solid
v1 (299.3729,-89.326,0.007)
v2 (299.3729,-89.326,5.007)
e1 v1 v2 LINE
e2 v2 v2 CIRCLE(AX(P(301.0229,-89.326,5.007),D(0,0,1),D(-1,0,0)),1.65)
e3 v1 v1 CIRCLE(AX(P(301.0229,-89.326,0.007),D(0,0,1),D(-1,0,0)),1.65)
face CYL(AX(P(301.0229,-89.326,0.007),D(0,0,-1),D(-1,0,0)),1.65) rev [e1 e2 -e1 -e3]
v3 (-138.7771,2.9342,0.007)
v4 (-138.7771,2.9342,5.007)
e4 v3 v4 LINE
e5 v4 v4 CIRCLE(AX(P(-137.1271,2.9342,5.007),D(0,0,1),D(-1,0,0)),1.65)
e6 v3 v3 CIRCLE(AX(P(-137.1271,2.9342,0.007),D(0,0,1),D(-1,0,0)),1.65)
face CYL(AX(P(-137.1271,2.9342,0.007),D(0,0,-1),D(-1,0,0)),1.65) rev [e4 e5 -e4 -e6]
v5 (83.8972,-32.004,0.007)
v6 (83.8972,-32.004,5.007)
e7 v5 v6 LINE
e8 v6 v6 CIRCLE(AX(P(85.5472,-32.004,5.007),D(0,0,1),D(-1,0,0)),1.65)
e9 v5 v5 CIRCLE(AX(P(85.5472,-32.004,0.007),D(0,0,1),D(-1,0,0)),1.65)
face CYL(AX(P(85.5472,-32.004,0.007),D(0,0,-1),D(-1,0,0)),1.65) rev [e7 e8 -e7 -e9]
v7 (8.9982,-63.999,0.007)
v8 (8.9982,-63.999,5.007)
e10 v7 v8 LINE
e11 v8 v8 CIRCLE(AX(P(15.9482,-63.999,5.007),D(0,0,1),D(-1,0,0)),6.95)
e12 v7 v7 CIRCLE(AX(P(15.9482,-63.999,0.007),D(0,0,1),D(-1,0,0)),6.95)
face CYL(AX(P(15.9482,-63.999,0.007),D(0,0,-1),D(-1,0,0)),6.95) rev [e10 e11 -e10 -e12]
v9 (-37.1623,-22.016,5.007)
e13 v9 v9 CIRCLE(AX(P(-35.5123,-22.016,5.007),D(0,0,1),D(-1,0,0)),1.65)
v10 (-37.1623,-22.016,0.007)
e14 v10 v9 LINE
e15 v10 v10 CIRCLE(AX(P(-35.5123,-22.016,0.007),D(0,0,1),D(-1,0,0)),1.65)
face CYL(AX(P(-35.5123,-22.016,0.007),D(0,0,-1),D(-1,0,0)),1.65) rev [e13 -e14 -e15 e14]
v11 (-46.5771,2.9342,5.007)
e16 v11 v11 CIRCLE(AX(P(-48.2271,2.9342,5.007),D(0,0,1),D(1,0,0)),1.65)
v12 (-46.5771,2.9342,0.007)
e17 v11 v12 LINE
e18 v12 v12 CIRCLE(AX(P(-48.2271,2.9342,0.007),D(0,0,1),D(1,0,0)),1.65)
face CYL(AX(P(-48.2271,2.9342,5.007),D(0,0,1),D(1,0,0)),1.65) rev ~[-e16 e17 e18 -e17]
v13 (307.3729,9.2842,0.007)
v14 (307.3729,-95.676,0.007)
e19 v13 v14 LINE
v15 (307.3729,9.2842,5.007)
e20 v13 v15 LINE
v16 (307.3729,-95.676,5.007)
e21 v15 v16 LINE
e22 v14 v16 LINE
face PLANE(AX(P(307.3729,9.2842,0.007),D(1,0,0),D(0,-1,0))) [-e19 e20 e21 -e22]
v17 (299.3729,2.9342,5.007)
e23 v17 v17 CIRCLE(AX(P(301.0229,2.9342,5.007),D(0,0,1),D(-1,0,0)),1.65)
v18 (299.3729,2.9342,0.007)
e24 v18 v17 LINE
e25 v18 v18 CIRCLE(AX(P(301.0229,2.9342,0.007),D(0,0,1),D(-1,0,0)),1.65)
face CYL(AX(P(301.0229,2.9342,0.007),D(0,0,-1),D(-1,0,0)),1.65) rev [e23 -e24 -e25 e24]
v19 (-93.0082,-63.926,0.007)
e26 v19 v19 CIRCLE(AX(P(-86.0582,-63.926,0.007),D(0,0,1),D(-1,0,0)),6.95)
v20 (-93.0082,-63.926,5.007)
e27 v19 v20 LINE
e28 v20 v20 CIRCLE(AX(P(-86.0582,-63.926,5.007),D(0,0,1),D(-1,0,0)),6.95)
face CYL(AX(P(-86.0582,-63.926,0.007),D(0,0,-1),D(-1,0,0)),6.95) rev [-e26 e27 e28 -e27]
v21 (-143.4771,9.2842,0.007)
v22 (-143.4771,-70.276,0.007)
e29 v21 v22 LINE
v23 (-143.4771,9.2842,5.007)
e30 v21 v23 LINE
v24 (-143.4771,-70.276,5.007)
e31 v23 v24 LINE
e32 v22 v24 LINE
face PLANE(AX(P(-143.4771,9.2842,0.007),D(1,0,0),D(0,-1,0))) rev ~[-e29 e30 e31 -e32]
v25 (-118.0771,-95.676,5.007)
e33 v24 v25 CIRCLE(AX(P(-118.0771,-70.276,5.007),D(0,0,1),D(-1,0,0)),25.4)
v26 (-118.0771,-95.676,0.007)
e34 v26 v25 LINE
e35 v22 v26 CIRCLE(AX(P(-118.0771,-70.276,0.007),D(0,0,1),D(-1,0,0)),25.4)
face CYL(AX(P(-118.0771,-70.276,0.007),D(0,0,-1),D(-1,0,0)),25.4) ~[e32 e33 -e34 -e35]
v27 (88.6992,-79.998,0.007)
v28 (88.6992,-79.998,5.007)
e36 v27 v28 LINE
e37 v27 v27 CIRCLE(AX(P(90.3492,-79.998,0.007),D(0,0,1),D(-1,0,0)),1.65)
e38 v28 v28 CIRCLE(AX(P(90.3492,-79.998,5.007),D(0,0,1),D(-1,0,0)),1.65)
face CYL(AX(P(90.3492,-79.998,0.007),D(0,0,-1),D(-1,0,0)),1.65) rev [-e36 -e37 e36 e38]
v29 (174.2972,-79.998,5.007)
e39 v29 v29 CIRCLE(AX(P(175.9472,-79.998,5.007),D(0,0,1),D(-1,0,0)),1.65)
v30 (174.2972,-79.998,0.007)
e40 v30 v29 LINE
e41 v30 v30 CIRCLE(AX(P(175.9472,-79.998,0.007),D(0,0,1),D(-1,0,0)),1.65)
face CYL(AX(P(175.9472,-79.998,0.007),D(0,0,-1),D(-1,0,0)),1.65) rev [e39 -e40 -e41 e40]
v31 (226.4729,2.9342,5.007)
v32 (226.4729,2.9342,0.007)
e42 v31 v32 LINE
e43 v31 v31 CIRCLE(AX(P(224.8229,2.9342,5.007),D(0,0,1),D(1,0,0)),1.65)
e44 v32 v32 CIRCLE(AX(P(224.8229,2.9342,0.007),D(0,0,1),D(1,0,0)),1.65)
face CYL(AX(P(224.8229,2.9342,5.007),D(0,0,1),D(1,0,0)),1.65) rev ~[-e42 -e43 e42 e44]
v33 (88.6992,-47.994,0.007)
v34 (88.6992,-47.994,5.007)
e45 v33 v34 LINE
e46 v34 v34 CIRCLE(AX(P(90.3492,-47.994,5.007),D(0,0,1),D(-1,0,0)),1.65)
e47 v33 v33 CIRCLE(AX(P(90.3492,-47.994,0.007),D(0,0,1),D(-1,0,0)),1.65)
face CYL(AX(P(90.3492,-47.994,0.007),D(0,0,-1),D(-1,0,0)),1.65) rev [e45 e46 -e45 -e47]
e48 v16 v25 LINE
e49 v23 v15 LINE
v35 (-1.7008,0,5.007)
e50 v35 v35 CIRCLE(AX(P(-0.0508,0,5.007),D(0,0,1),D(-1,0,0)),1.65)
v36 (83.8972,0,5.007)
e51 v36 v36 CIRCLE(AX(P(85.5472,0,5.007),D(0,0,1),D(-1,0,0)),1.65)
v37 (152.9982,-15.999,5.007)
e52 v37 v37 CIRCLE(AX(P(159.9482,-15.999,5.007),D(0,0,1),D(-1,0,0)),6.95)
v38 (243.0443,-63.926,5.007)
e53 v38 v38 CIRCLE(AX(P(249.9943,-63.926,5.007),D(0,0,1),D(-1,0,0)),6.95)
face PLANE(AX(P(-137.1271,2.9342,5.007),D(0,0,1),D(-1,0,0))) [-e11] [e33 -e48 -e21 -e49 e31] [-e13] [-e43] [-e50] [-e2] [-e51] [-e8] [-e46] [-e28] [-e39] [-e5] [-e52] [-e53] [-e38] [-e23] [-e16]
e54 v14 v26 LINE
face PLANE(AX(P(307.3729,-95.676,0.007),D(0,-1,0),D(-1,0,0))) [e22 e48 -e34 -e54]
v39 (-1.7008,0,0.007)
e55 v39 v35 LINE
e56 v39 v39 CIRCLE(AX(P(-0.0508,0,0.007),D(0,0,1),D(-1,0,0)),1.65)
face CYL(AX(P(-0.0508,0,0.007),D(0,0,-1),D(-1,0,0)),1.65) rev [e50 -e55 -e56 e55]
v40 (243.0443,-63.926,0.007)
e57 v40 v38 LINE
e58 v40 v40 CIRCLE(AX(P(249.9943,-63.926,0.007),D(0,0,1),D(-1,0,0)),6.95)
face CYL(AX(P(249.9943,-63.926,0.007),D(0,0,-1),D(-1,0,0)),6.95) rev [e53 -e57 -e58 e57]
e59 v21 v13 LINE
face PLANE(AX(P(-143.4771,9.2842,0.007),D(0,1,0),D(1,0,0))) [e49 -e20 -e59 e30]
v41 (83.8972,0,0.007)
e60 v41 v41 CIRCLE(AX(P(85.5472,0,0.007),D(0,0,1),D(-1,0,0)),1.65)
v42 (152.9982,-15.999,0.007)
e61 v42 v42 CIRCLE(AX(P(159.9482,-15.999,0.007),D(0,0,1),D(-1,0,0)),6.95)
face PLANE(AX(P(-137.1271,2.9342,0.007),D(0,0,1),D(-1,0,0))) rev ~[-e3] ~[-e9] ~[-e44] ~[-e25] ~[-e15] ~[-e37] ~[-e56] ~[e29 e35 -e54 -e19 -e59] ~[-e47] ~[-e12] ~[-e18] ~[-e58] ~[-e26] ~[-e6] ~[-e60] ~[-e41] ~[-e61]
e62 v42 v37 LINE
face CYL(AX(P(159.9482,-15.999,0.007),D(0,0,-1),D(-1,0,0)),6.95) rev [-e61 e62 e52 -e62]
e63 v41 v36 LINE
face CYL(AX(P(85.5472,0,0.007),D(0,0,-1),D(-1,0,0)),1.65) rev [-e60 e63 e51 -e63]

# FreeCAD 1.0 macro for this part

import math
import FreeCAD as App
import Part
import Sketcher

V = App.Vector
Q = App.Units.Quantity

doc = App.newDocument("Part")
body = doc.addObject("PartDesign::Body", "Body")

# Sketch on XY plane
sketch1 = body.newObject("Sketcher::SketchObject", "Sketch")
sketch1.AttachmentSupport = (doc.getObject("XY_Plane"), [""])
sketch1.MapMode = "FlatFace"
sketch1.AttachmentOffset = App.Placement(V(0, 0, 0.007), App.Rotation())
sketch1.addGeometry([
    Part.LineSegment(V(307.4, 9.3, 0), V(-143.5, 9.3, 0)),  # 0
    Part.LineSegment(V(-143.5, 9.3, 0), V(-143.5, -70.3, 0)),  # 1
    Part.ArcOfCircle(Part.Circle(V(-118.1, -70.3, 0), V(0, 0, 1), 25.4), math.radians(180), math.radians(270)),  # 2
    Part.LineSegment(V(-118.1, -95.7, 0), V(307.4, -95.7, 0)),  # 3
    Part.LineSegment(V(307.4, -95.7, 0), V(307.4, 9.3, 0)),  # 4
    Part.Circle(V(301, 2.9, 0), V(0, 0, 1), 1.6),  # 5
    Part.Circle(V(85.5, 0, 0), V(0, 0, 1), 1.6),  # 6
    Part.Circle(V(159.9, -16, 0), V(0, 0, 1), 7),  # 7
    Part.Circle(V(85.5, -32, 0), V(0, 0, 1), 1.6),  # 8
    Part.Circle(V(-0.1, 0, 0), V(0, 0, 1), 1.6),  # 9
    Part.Circle(V(-137.1, 2.9, 0), V(0, 0, 1), 1.6),  # 10
    Part.Circle(V(-35.5, -22, 0), V(0, 0, 1), 1.6),  # 11
    Part.Circle(V(250, -63.9, 0), V(0, 0, 1), 7),  # 12
    Part.Circle(V(90.3, -48, 0), V(0, 0, 1), 1.6),  # 13
    Part.Circle(V(301, -89.3, 0), V(0, 0, 1), 1.6),  # 14
    Part.Circle(V(175.9, -80, 0), V(0, 0, 1), 1.6),  # 15
    Part.Circle(V(90.3, -80, 0), V(0, 0, 1), 1.6),  # 16
    Part.Circle(V(15.9, -64, 0), V(0, 0, 1), 7),  # 17
    Part.Circle(V(-86.1, -63.9, 0), V(0, 0, 1), 7),  # 18
], False)
sketch1.addConstraint([
    Sketcher.Constraint("Coincident", 0, 2, 1, 1),
    Sketcher.Constraint("Tangent", 1, 2, 2, 1),
    Sketcher.Constraint("Tangent", 2, 2, 3, 1),
    Sketcher.Constraint("Coincident", 3, 2, 4, 1),
    Sketcher.Constraint("Coincident", 4, 2, 0, 1),
    Sketcher.Constraint("Horizontal", 0),
    Sketcher.Constraint("Vertical", 1),
    Sketcher.Constraint("Horizontal", 3),
    Sketcher.Constraint("Vertical", 4),
    Sketcher.Constraint("Equal", 5, 6),
    Sketcher.Constraint("Equal", 6, 8),
    Sketcher.Constraint("Equal", 8, 9),
    Sketcher.Constraint("Equal", 9, 10),
    Sketcher.Constraint("Equal", 10, 11),
    Sketcher.Constraint("Equal", 7, 12),
    Sketcher.Constraint("Equal", 11, 13),
    Sketcher.Constraint("Equal", 13, 14),
    Sketcher.Constraint("Equal", 14, 15),
    Sketcher.Constraint("Equal", 15, 16),
    Sketcher.Constraint("Equal", 12, 17),
    Sketcher.Constraint("Equal", 17, 18),
    Sketcher.Constraint("PointOnObject", 6, 3, -1),
    Sketcher.Constraint("PointOnObject", 9, 3, -1),
    Sketcher.Constraint("Horizontal", 5, 3, 10, 3),
    Sketcher.Constraint("Horizontal", 15, 3, 16, 3),
    Sketcher.Constraint("Horizontal", 12, 3, 18, 3),
    Sketcher.Constraint("Vertical", 6, 3, 8, 3),
    Sketcher.Constraint("Vertical", 5, 3, 14, 3),
    Sketcher.Constraint("Vertical", 13, 3, 16, 3),
    Sketcher.Constraint("Diameter", 5, Q("3.3 mm")),
    Sketcher.Constraint("Diameter", 7, Q("13.9 mm")),
    Sketcher.Constraint("Radius", 2, Q("25.4 mm")),
    Sketcher.Constraint("DistanceY", 14, 3, 12, 3, Q("25.4 mm")),
    Sketcher.Constraint("DistanceX", 0, 2, 0, 1, Q("450.85 mm")),
    Sketcher.Constraint("DistanceX", 2, 3, 5, 3, Q("419.1 mm")),
    Sketcher.Constraint("DistanceX", 9, 3, 13, 3, Q("90.4 mm")),
    Sketcher.Constraint("DistanceX", 8, 3, 15, 3, Q("90.4 mm")),
    Sketcher.Constraint("DistanceX", 10, 3, 2, 3, Q("19.05 mm")),
    Sketcher.Constraint("DistanceY", 2, 3, 11, 3, Q("48.26 mm")),
    Sketcher.Constraint("DistanceY", 13, 3, 8, 3, Q("15.99 mm")),
    Sketcher.Constraint("DistanceY", 2, 3, 18, 3, Q("6.35 mm")),
    Sketcher.Constraint("DistanceY", 10, 3, 0, 2, Q("6.35 mm")),
    Sketcher.Constraint("DistanceY", 1, 2, 1, 1, Q("79.5602 mm")),
    Sketcher.Constraint("DistanceX", 2, 3, -1, 1, Q("118.077 mm")),
    Sketcher.Constraint("DistanceY", 2, 3, -1, 1, Q("70.276 mm")),
    Sketcher.Constraint("DistanceY", 7, 3, -1, 1, Q("15.999 mm")),
    Sketcher.Constraint("DistanceY", 8, 3, -1, 1, Q("32.004 mm")),
    Sketcher.Constraint("DistanceY", 15, 3, -1, 1, Q("79.998 mm")),
    Sketcher.Constraint("DistanceY", 17, 3, -1, 1, Q("63.999 mm")),
    Sketcher.Constraint("DistanceX", 6, 3, 7, 3, Q("74.401 mm")),
    Sketcher.Constraint("DistanceX", 9, 3, 6, 3, Q("85.598 mm")),
    Sketcher.Constraint("DistanceX", 7, 3, 12, 3, Q("90.046 mm")),
    Sketcher.Constraint("DistanceX", 9, 3, 17, 3, Q("15.999 mm")),
    Sketcher.Constraint("DistanceX", 2, 3, 18, 3, Q("32.019 mm")),
    Sketcher.Constraint("DistanceX", 18, 3, 11, 3, Q("50.546 mm")),
    Sketcher.Constraint("DistanceX", -1, 1, 6, 3, Q("85.5472 mm")),
])
pad1 = body.newObject("PartDesign::Pad", "Pad")
pad1.Profile = sketch1
pad1.Length = 5

# Sketch on XY plane
sketch2 = body.newObject("Sketcher::SketchObject", "Sketch001")
sketch2.AttachmentSupport = (doc.getObject("XY_Plane"), [""])
sketch2.MapMode = "FlatFace"
sketch2.AttachmentOffset = App.Placement(V(0, 0, 5.007), App.Rotation())
sketch2.addGeometry([
    Part.Circle(V(-48.2, 2.9, 0), V(0, 0, 1), 1.6),
    Part.Circle(V(224.8, 2.9, 0), V(0, 0, 1), 1.6),
], False)
sketch2.addConstraint([
    Sketcher.Constraint("Equal", 0, 1),
    Sketcher.Constraint("Horizontal", 0, 3, 1, 3),
    Sketcher.Constraint("Diameter", 0, Q("3.3 mm")),
    Sketcher.Constraint("DistanceX", 0, 3, 1, 3, Q("273.05 mm")),
    Sketcher.Constraint("DistanceX", 0, 3, -1, 1, Q("48.227 mm")),
    Sketcher.Constraint("DistanceY", -1, 1, 0, 3, Q("2.9342 mm")),
])
pocket1 = body.newObject("PartDesign::Pocket", "Pocket")
pocket1.Profile = sketch2
pocket1.Type = "ThroughAll"

doc.recompute()
